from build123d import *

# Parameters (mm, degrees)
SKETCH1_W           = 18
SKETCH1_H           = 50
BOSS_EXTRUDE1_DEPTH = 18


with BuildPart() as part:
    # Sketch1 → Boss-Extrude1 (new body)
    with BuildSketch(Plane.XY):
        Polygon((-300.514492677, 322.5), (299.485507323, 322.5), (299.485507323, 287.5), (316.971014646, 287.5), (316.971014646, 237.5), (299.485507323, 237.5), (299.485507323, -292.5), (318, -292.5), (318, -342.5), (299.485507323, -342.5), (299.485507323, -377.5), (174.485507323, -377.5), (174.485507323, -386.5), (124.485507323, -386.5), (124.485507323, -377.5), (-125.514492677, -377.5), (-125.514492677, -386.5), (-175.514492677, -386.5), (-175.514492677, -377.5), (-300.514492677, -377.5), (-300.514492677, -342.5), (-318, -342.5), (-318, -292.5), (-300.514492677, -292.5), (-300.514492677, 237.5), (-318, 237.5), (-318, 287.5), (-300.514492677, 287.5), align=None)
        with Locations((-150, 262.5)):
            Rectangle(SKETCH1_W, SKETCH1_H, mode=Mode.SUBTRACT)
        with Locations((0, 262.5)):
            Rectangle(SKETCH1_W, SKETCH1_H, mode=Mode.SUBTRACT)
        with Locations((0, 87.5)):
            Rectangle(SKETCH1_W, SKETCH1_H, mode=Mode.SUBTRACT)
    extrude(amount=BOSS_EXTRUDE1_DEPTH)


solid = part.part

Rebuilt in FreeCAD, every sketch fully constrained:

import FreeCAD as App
import Part
import Sketcher

V = App.Vector

doc = App.newDocument("Part")
body = doc.addObject("PartDesign::Body", "Body")

sketch1 = doc.addObject("Sketcher::SketchObject", "Sketch")
body.addObject(sketch1)
sketch1.AttachmentSupport = (doc.XY_Plane, [""])
sketch1.MapMode = "FlatFace"
sketch1.addGeometry([
    Part.LineSegment(V(299.485507, 322.5, 0), V(-300.514493, 322.5, 0)),
    Part.LineSegment(V(-300.514493, 322.5, 0), V(-300.514493, 287.5, 0)),
    Part.LineSegment(V(-300.514493, 287.5, 0), V(-318, 287.5, 0)),
    Part.LineSegment(V(-318, 287.5, 0), V(-318, 237.5, 0)),
    Part.LineSegment(V(-318, 237.5, 0), V(-300.514493, 237.5, 0)),
    Part.LineSegment(V(-300.514493, 237.5, 0), V(-300.514493, -292.5, 0)),
    Part.LineSegment(V(-300.514493, -292.5, 0), V(-318, -292.5, 0)),
    Part.LineSegment(V(-318, -292.5, 0), V(-318, -342.5, 0)),
    Part.LineSegment(V(-318, -342.5, 0), V(-300.514493, -342.5, 0)),
    Part.LineSegment(V(-300.514493, -342.5, 0), V(-300.514493, -377.5, 0)),
    Part.LineSegment(V(-300.514493, -377.5, 0), V(-175.514493, -377.5, 0)),
    Part.LineSegment(V(-175.514493, -377.5, 0), V(-175.514493, -386.5, 0)),
    Part.LineSegment(V(-175.514493, -386.5, 0), V(-125.514493, -386.5, 0)),
    Part.LineSegment(V(-125.514493, -386.5, 0), V(-125.514493, -377.5, 0)),
    Part.LineSegment(V(-125.514493, -377.5, 0), V(124.485507, -377.5, 0)),
    Part.LineSegment(V(124.485507, -377.5, 0), V(124.485507, -386.5, 0)),
    Part.LineSegment(V(124.485507, -386.5, 0), V(174.485507, -386.5, 0)),
    Part.LineSegment(V(174.485507, -386.5, 0), V(174.485507, -377.5, 0)),
    Part.LineSegment(V(174.485507, -377.5, 0), V(299.485507, -377.5, 0)),
    Part.LineSegment(V(299.485507, -377.5, 0), V(299.485507, -342.5, 0)),
    Part.LineSegment(V(299.485507, -342.5, 0), V(318, -342.5, 0)),
    Part.LineSegment(V(318, -342.5, 0), V(318, -292.5, 0)),
    Part.LineSegment(V(318, -292.5, 0), V(299.485507, -292.5, 0)),
    Part.LineSegment(V(299.485507, -292.5, 0), V(299.485507, 237.5, 0)),
    Part.LineSegment(V(299.485507, 237.5, 0), V(316.971015, 237.5, 0)),
    Part.LineSegment(V(316.971015, 237.5, 0), V(316.971015, 287.5, 0)),
    Part.LineSegment(V(316.971015, 287.5, 0), V(299.485507, 287.5, 0)),
    Part.LineSegment(V(299.485507, 287.5, 0), V(299.485507, 322.5, 0)),
    Part.LineSegment(V(-9, 62.5, 0), V(-9, 112.5, 0)),
    Part.LineSegment(V(-9, 112.5, 0), V(9, 112.5, 0)),
    Part.LineSegment(V(9, 112.5, 0), V(9, 62.5, 0)),
    Part.LineSegment(V(9, 62.5, 0), V(-9, 62.5, 0)),
    Part.LineSegment(V(-9, 237.5, 0), V(-9, 287.5, 0)),
    Part.LineSegment(V(-9, 287.5, 0), V(9, 287.5, 0)),
    Part.LineSegment(V(9, 287.5, 0), V(9, 237.5, 0)),
    Part.LineSegment(V(9, 237.5, 0), V(-9, 237.5, 0)),
    Part.LineSegment(V(-159, 237.5, 0), V(-159, 287.5, 0)),
    Part.LineSegment(V(-159, 287.5, 0), V(-141, 287.5, 0)),
    Part.LineSegment(V(-141, 287.5, 0), V(-141, 237.5, 0)),
    Part.LineSegment(V(-141, 237.5, 0), V(-159, 237.5, 0)),
], False)
sketch1.addConstraint([
    Sketcher.Constraint("Coincident", 0, 2, 1, 1),
    Sketcher.Constraint("Coincident", 1, 2, 2, 1),
    Sketcher.Constraint("Coincident", 2, 2, 3, 1),
    Sketcher.Constraint("Coincident", 3, 2, 4, 1),
    Sketcher.Constraint("Coincident", 4, 2, 5, 1),
    Sketcher.Constraint("Coincident", 5, 2, 6, 1),
    Sketcher.Constraint("Coincident", 6, 2, 7, 1),
    Sketcher.Constraint("Coincident", 7, 2, 8, 1),
    Sketcher.Constraint("Coincident", 8, 2, 9, 1),
    Sketcher.Constraint("Coincident", 9, 2, 10, 1),
    Sketcher.Constraint("Coincident", 10, 2, 11, 1),
    Sketcher.Constraint("Coincident", 11, 2, 12, 1),
    Sketcher.Constraint("Coincident", 12, 2, 13, 1),
    Sketcher.Constraint("Coincident", 13, 2, 14, 1),
    Sketcher.Constraint("Coincident", 14, 2, 15, 1),
    Sketcher.Constraint("Coincident", 15, 2, 16, 1),
    Sketcher.Constraint("Coincident", 16, 2, 17, 1),
    Sketcher.Constraint("Coincident", 17, 2, 18, 1),
    Sketcher.Constraint("Coincident", 18, 2, 19, 1),
    Sketcher.Constraint("Coincident", 19, 2, 20, 1),
    Sketcher.Constraint("Coincident", 20, 2, 21, 1),
    Sketcher.Constraint("Coincident", 21, 2, 22, 1),
    Sketcher.Constraint("Coincident", 22, 2, 23, 1),
    Sketcher.Constraint("Coincident", 23, 2, 24, 1),
    Sketcher.Constraint("Coincident", 24, 2, 25, 1),
    Sketcher.Constraint("Coincident", 25, 2, 26, 1),
    Sketcher.Constraint("Coincident", 26, 2, 27, 1),
    Sketcher.Constraint("Coincident", 27, 2, 0, 1),
    Sketcher.Constraint("Coincident", 28, 2, 29, 1),
    Sketcher.Constraint("Coincident", 29, 2, 30, 1),
    Sketcher.Constraint("Coincident", 30, 2, 31, 1),
    Sketcher.Constraint("Coincident", 31, 2, 28, 1),
    Sketcher.Constraint("Coincident", 32, 2, 33, 1),
    Sketcher.Constraint("Coincident", 33, 2, 34, 1),
    Sketcher.Constraint("Coincident", 34, 2, 35, 1),
    Sketcher.Constraint("Coincident", 35, 2, 32, 1),
    Sketcher.Constraint("Coincident", 36, 2, 37, 1),
    Sketcher.Constraint("Coincident", 37, 2, 38, 1),
    Sketcher.Constraint("Coincident", 38, 2, 39, 1),
    Sketcher.Constraint("Coincident", 39, 2, 36, 1),
    Sketcher.Constraint("Horizontal", 0),
    Sketcher.Constraint("Vertical", 1),
    Sketcher.Constraint("Horizontal", 2),
    Sketcher.Constraint("Vertical", 3),
    Sketcher.Constraint("Horizontal", 4),
    Sketcher.Constraint("Vertical", 5),
    Sketcher.Constraint("Horizontal", 6),
    Sketcher.Constraint("Vertical", 7),
    Sketcher.Constraint("Horizontal", 8),
    Sketcher.Constraint("Vertical", 9),
    Sketcher.Constraint("Horizontal", 10),
    Sketcher.Constraint("Vertical", 11),
    Sketcher.Constraint("Horizontal", 12),
    Sketcher.Constraint("Vertical", 13),
    Sketcher.Constraint("Horizontal", 14),
    Sketcher.Constraint("Vertical", 15),
    Sketcher.Constraint("Horizontal", 16),
    Sketcher.Constraint("Vertical", 17),
    Sketcher.Constraint("Horizontal", 18),
    Sketcher.Constraint("Vertical", 19),
    Sketcher.Constraint("Horizontal", 20),
    Sketcher.Constraint("Vertical", 21),
    Sketcher.Constraint("Horizontal", 22),
    Sketcher.Constraint("Vertical", 23),
    Sketcher.Constraint("Horizontal", 24),
    Sketcher.Constraint("Vertical", 25),
    Sketcher.Constraint("Horizontal", 26),
    Sketcher.Constraint("Vertical", 27),
    Sketcher.Constraint("Vertical", 28),
    Sketcher.Constraint("Horizontal", 29),
    Sketcher.Constraint("Vertical", 30),
    Sketcher.Constraint("Horizontal", 31),
    Sketcher.Constraint("Vertical", 32),
    Sketcher.Constraint("Horizontal", 33),
    Sketcher.Constraint("Vertical", 34),
    Sketcher.Constraint("Horizontal", 35),
    Sketcher.Constraint("Vertical", 36),
    Sketcher.Constraint("Horizontal", 37),
    Sketcher.Constraint("Vertical", 38),
    Sketcher.Constraint("Horizontal", 39),
    Sketcher.Constraint("Symmetric", 7, 2, 20, 2, -2),
    Sketcher.Constraint("Horizontal", 10, 2, 13, 2),
    Sketcher.Constraint("Horizontal", 12, 2, 15, 2),
    Sketcher.Constraint("Horizontal", 14, 2, 17, 2),
    Sketcher.Constraint("Horizontal", 6, 2, 21, 2),
    Sketcher.Constraint("Horizontal", 4, 2, 23, 2),
    Sketcher.Constraint("Horizontal", 2, 2, 25, 2),
    Sketcher.Constraint("Horizontal", 26, 2, 32, 2),
    Sketcher.Constraint("Horizontal", 24, 2, 34, 2),
    Sketcher.Constraint("Horizontal", 33, 2, 36, 2),
    Sketcher.Constraint("Horizontal", 35, 2, 38, 2),
    Sketcher.Constraint("Vertical", 1, 2, 4, 2),
    Sketcher.Constraint("Vertical", 3, 2, 6, 2),
    Sketcher.Constraint("Vertical", 5, 2, 8, 2),
    Sketcher.Constraint("Vertical", 19, 2, 22, 2),
    Sketcher.Constraint("Vertical", 23, 2, 26, 2),
    Sketcher.Constraint("Vertical", 31, 2, 32, 2),
    Sketcher.Constraint("Vertical", 30, 2, 33, 2),
    Sketcher.Constraint("Equal", 12, 16),
    Sketcher.Constraint("Equal", 10, 18),
    Sketcher.Constraint("Equal", 8, 24),
    Sketcher.Constraint("Equal", 35, 37),
    Sketcher.Constraint("Equal", 16, 3),
    Sketcher.Constraint("Equal", 3, 7),
    Sketcher.Constraint("Equal", 1, 9),
    Sketcher.Constraint("Equal", 25, 28),
    Sketcher.Constraint("DistanceX", 0, 2, 0, 1, 600.0),
    Sketcher.Constraint("DistanceX", 10, 1, 10, 2, 125.0),
    Sketcher.Constraint("DistanceX", 12, 1, 12, 2, 50.0),
    Sketcher.Constraint("DistanceX", 29, 1, 29, 2, 18.0),
    Sketcher.Constraint("DistanceY", 1, 2, 1, 1, 35.0),
    Sketcher.Constraint("DistanceY", 5, 2, 5, 1, 530.0),
    Sketcher.Constraint("DistanceY", 11, 2, 11, 1, 9.0),
    Sketcher.Constraint("DistanceX", 2, 2, -1, 1, 318.0),
    Sketcher.Constraint("DistanceX", 28, 2, -1, 1, 9.0),
    Sketcher.Constraint("DistanceX", 36, 2, -1, 1, 159.0),
    Sketcher.Constraint("DistanceY", 28, 2, 4, 2, 125.0),
    Sketcher.Constraint("DistanceY", -1, 1, 0, 2, 322.5),
    Sketcher.Constraint("DistanceX", 2, 2, 2, 1, 17.485507),
])
pad1 = doc.addObject("PartDesign::Pad", "Pad")
body.addObject(pad1)
pad1.Profile = sketch1
pad1.Length = 18

doc.recompute()
